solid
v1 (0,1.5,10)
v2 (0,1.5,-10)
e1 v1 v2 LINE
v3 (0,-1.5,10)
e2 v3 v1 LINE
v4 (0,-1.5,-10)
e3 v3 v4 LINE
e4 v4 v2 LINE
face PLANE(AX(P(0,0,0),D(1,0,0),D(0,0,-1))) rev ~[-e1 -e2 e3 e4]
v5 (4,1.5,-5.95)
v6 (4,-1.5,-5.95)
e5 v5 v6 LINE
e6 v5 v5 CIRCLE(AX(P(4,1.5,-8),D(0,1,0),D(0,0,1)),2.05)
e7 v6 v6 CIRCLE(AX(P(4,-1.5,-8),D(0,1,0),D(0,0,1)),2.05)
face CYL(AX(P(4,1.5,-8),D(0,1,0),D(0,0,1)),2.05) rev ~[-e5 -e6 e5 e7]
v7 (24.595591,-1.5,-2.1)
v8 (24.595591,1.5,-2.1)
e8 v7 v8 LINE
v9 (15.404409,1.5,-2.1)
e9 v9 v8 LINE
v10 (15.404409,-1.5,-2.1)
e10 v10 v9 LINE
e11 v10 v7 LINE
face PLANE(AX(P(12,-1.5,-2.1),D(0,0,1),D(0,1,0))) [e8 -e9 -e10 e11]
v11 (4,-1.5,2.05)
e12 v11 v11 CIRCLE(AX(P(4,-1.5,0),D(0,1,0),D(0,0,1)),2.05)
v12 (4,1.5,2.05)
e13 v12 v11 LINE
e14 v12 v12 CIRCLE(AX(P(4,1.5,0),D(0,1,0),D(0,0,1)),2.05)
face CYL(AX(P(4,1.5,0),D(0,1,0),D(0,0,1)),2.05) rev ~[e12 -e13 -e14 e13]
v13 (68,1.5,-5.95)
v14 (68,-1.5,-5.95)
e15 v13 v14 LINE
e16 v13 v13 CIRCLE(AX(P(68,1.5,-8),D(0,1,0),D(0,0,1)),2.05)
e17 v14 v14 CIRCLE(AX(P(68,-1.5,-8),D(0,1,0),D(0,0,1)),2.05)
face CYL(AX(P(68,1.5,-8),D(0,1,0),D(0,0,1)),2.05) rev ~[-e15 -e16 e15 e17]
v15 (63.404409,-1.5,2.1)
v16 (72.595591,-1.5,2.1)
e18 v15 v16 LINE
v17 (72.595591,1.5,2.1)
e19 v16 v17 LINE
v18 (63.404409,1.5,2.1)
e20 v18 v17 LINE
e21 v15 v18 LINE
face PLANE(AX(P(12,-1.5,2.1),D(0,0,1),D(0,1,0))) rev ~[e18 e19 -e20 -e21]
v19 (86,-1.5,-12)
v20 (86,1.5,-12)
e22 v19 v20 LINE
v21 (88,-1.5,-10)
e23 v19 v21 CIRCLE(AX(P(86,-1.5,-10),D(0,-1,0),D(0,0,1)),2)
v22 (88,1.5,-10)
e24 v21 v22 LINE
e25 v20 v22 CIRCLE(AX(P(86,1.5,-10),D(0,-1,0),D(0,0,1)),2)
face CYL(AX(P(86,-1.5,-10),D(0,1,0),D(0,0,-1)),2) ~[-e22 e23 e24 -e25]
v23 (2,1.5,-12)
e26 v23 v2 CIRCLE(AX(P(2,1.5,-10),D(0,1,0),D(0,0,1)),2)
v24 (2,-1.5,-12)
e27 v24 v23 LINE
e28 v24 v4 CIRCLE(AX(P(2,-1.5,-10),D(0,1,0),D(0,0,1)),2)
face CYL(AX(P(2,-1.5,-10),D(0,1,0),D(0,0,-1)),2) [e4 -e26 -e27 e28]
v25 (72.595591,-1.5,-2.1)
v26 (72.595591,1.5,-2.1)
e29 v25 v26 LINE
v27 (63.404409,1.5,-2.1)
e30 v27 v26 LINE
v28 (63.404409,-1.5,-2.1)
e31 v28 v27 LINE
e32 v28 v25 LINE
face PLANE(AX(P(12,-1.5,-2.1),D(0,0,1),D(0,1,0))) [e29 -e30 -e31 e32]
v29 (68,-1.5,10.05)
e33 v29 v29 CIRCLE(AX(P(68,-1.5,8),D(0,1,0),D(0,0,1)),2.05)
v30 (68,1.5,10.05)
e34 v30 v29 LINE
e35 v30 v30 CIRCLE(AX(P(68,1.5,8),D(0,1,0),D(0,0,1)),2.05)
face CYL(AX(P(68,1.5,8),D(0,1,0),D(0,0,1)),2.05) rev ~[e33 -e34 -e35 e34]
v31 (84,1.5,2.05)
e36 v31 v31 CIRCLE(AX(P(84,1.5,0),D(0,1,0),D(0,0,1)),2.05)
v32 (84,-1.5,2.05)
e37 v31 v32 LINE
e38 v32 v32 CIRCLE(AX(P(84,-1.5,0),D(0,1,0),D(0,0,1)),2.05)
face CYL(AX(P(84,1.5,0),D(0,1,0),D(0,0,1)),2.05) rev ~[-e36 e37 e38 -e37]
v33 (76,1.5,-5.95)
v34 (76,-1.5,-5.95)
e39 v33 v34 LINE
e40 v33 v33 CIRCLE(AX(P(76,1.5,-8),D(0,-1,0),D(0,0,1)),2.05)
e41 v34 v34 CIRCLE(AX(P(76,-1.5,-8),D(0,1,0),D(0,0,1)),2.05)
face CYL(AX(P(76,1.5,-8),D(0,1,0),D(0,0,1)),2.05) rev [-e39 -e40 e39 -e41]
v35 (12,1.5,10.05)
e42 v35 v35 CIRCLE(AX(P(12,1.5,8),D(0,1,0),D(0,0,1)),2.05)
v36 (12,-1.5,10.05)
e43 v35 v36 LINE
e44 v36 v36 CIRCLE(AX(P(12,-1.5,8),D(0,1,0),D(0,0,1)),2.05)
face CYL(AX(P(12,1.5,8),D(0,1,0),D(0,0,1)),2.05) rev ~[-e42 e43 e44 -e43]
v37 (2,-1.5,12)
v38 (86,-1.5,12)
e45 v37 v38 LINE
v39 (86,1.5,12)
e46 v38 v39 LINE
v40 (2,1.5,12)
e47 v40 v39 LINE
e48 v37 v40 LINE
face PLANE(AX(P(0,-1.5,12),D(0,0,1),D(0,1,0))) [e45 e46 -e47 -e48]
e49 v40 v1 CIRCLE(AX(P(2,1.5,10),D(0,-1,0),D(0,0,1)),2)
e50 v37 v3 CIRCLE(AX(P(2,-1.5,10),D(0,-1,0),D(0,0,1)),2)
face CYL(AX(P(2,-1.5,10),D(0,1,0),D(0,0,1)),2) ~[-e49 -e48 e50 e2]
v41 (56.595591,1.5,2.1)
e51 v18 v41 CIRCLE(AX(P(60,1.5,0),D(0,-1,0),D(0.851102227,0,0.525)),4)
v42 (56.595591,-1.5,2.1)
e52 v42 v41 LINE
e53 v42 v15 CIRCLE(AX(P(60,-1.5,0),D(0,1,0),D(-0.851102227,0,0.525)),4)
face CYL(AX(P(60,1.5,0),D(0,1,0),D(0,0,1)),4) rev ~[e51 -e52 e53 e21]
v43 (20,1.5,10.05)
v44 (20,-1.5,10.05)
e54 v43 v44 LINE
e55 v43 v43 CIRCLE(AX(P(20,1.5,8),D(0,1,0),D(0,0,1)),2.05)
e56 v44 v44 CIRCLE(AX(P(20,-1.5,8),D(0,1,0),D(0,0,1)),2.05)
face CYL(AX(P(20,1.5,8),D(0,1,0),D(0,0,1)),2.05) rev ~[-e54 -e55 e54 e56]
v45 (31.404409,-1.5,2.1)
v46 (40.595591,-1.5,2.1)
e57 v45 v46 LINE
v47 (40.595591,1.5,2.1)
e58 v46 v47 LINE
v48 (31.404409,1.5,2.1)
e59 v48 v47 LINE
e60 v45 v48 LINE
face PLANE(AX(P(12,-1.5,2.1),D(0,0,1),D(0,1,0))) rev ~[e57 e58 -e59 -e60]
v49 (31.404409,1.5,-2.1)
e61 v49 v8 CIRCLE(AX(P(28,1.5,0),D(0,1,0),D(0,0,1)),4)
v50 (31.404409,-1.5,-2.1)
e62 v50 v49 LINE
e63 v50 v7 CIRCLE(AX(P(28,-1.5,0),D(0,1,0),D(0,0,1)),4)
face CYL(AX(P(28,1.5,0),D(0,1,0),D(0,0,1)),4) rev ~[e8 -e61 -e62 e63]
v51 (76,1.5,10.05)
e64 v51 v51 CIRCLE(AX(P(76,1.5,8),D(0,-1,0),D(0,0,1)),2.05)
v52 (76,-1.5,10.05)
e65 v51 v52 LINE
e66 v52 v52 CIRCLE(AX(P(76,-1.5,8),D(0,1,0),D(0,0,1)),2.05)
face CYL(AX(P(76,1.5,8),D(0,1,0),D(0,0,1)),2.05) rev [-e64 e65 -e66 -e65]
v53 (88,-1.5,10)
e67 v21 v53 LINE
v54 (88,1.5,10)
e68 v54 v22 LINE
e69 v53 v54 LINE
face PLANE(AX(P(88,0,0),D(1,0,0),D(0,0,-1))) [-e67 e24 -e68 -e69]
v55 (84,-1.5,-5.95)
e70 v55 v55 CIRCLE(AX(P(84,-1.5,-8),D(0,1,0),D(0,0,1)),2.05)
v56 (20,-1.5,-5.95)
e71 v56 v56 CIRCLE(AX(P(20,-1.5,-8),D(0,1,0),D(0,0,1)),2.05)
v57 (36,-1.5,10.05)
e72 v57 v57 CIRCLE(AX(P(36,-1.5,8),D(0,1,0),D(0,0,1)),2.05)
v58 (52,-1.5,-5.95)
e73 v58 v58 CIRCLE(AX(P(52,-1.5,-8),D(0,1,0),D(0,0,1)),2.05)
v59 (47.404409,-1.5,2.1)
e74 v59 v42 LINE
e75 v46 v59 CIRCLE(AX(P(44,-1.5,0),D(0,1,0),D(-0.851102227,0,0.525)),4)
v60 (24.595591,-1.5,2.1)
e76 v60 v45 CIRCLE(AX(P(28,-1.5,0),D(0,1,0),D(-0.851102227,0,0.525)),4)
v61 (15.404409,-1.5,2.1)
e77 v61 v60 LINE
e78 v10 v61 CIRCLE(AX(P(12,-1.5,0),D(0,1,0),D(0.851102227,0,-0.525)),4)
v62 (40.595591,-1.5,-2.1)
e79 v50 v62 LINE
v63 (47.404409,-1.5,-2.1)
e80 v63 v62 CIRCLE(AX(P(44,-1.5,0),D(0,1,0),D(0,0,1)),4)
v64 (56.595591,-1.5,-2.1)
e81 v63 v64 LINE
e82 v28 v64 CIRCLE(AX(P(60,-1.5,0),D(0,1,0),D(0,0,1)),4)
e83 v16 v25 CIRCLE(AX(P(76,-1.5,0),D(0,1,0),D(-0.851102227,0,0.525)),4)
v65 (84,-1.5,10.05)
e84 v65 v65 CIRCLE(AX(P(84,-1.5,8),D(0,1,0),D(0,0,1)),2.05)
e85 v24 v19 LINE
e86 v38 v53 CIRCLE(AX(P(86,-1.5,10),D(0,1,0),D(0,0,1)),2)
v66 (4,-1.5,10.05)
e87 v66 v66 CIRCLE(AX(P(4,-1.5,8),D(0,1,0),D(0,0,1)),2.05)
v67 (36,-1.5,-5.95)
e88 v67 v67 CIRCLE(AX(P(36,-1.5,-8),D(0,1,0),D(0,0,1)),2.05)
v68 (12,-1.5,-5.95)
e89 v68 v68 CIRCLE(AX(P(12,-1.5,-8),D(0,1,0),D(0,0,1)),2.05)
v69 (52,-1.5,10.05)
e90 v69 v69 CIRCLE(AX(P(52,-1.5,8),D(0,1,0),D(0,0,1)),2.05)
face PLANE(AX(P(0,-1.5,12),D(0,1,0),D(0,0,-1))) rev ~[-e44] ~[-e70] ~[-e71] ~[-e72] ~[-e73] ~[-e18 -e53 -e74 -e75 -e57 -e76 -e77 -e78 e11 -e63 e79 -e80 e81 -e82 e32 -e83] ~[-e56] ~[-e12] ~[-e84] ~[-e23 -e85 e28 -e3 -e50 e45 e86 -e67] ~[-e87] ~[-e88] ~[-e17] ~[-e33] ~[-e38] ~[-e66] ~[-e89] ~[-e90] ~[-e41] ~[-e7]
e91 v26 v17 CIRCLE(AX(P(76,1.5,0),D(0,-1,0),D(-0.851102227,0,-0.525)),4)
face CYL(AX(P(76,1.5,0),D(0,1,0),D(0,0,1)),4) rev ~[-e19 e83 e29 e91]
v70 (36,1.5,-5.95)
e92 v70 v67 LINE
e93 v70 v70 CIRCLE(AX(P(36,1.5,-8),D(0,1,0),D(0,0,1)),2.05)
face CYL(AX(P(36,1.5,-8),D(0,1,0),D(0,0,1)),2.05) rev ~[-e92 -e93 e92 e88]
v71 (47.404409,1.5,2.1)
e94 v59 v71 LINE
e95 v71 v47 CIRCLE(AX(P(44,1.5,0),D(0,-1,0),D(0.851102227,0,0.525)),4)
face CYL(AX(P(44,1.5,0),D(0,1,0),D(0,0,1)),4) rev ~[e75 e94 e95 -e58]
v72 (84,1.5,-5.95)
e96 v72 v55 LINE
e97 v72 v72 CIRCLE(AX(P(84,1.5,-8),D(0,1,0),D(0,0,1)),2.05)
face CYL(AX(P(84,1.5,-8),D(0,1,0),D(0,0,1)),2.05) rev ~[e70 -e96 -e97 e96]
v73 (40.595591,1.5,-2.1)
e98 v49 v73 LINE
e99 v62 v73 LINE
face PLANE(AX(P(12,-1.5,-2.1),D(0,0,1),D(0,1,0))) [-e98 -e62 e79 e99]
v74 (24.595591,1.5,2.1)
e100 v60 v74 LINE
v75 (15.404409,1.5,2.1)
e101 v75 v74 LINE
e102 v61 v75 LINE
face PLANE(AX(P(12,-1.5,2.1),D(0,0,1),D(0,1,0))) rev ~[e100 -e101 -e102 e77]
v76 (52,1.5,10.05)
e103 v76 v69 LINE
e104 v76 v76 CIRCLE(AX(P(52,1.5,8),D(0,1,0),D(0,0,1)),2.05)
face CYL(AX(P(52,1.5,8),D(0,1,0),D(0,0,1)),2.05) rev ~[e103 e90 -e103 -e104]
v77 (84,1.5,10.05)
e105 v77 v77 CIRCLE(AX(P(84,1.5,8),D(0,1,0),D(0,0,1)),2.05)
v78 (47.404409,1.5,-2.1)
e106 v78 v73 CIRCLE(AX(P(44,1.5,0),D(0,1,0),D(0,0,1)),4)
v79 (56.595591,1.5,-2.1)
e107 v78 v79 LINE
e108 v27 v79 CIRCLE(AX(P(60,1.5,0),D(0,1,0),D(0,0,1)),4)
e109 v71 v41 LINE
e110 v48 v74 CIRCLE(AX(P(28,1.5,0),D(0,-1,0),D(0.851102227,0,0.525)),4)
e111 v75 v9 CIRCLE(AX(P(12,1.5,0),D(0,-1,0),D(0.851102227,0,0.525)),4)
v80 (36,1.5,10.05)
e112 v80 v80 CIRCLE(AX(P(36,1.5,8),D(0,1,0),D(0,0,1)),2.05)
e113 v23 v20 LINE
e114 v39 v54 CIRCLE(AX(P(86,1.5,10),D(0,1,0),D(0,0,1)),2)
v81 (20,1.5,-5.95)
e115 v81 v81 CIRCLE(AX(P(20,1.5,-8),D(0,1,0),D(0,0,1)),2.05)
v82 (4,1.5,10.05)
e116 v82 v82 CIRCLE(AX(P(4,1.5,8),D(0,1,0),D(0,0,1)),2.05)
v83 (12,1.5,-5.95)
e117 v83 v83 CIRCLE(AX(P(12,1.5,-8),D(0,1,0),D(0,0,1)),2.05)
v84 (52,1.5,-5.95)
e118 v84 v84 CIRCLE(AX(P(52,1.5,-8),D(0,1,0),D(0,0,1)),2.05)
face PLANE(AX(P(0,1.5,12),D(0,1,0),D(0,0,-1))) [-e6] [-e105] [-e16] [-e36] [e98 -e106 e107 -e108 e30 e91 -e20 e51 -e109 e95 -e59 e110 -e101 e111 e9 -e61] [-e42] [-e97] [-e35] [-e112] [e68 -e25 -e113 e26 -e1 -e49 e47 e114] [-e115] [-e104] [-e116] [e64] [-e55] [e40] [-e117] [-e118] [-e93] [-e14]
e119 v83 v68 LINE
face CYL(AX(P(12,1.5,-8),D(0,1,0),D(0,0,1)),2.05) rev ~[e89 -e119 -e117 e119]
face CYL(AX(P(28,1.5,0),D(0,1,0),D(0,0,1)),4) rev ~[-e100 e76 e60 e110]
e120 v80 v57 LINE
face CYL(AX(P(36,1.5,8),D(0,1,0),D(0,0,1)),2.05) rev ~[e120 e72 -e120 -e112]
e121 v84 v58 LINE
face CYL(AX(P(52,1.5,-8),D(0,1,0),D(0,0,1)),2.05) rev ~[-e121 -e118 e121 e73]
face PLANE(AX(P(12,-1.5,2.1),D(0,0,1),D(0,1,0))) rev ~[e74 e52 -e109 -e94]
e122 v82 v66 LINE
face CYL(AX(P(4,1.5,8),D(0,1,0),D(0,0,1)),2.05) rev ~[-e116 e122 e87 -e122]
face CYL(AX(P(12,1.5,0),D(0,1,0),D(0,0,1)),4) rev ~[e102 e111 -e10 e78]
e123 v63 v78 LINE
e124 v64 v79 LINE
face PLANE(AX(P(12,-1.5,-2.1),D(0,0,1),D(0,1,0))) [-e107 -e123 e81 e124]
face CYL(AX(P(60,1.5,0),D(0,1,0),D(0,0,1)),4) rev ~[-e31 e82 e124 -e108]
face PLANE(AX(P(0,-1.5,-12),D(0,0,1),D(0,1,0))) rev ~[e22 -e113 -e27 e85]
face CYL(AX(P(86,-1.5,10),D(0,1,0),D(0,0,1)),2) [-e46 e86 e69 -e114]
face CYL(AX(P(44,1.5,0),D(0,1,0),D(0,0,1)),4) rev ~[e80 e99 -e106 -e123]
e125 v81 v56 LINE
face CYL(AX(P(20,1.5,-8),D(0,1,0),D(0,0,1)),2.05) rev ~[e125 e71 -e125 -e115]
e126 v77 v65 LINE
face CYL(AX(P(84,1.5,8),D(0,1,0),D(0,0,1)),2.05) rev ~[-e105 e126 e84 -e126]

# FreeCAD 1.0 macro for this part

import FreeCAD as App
import Part
import Sketcher
from FreeCAD import Vector


def edges_at(feature, points):
    """Names of the edges that pass closest to the given points."""
    edges = feature.Shape.Edges
    near = lambda p: min(range(len(edges)), key=lambda i: edges[i].distToShape(Part.Vertex(*p))[0])
    return sorted({f"Edge{near(p) + 1}" for p in points})


def add_polygon(sketch, points):
    """Adds a closed chain of lines whose ends are joined by coincident constraints."""
    first, n = sketch.GeometryCount, len(points)
    for a, b in zip(points, points[1:] + points[:1]):
        sketch.addGeometry(Part.LineSegment(App.Vector(*a, 0), App.Vector(*b, 0)), False)
    for i in range(n):
        sketch.addConstraint(Sketcher.Constraint("Coincident", first + i, 2, first + (i + 1) % n, 1))

doc = App.newDocument("Part")
body = doc.addObject("PartDesign::Body", "Body")

# Sketch on YZ plane
sketch1 = body.newObject("Sketcher::SketchObject", "Sketch")
sketch1.AttachmentSupport = (doc.getObject("YZ_Plane"), [""])
sketch1.MapMode = "FlatFace"
add_polygon(sketch1, [(1.5, 12), (-1.5, 12), (-1.5, -12), (1.5, -12)])  # lines 0-3
sketch1.addConstraint([
    Sketcher.Constraint("Horizontal", 0),
    Sketcher.Constraint("Vertical", 1),
    Sketcher.Constraint("Horizontal", 2),
    Sketcher.Constraint("Vertical", 3),
    Sketcher.Constraint("Symmetric", 0, 2, 2, 2, -1, 1),
    Sketcher.Constraint("DistanceX", 0, 2, 0, 1, 3.0),
    Sketcher.Constraint("DistanceY", 1, 2, 1, 1, 24.0),
])
pad1 = body.newObject("PartDesign::Pad", "Pad")
pad1.Profile = sketch1
pad1.Length = 88
doc.recompute()

fillet = body.newObject("PartDesign::Fillet", "Fillet")
fillet.Base = (pad1, edges_at(pad1, [
    (88, 0, 12),
    (88, 0, -12),
    (0, 0, 12),
    (0, 0, -12),
]))
fillet.Radius = 2

# Sketch on XZ plane
sketch2 = body.newObject("Sketcher::SketchObject", "Sketch001")
sketch2.AttachmentSupport = (doc.getObject("XZ_Plane"), [""])
sketch2.MapMode = "FlatFace"
sketch2.AttachmentOffset = App.Placement(Vector(0, 0, -1.5), App.Rotation())
sketch2.addGeometry([
    Part.Circle(Vector(4, -8, 0), Vector(0, 0, 1), 2.05),
    Part.Circle(Vector(4, 8, 0), Vector(0, 0, 1), 2.05),
], False)
sketch2.addConstraint([
    Sketcher.Constraint("Equal", 0, 1),
    Sketcher.Constraint("Symmetric", 0, 3, 1, 3, -1),
    Sketcher.Constraint("Diameter", 0, 4.1),
    Sketcher.Constraint("DistanceX", -1, 1, 0, 3, 4.0),
    Sketcher.Constraint("DistanceY", 0, 3, -1, 1, 8.0),
])
pocket1 = body.newObject("PartDesign::Pocket", "Pocket")
pocket1.Profile = sketch2
pocket1.Type = "ThroughAll"
pocket1.Reversed = True

# Sketch on XZ plane
sketch3 = body.newObject("Sketcher::SketchObject", "Sketch002")
sketch3.AttachmentSupport = (doc.getObject("XZ_Plane"), [""])
sketch3.MapMode = "FlatFace"
sketch3.AttachmentOffset = App.Placement(Vector(0, 0, -1.5), App.Rotation())
sketch3.addGeometry(Part.Circle(Vector(12, 0, 0), Vector(0, 0, 1), 4), False)
sketch3.addConstraint([
    Sketcher.Constraint("PointOnObject", 0, 3, -1),
    Sketcher.Constraint("Diameter", 0, 8.0),
    Sketcher.Constraint("DistanceX", -1, 1, 0, 3, 12.0),
])
pocket2 = body.newObject("PartDesign::Pocket", "Pocket001")
pocket2.Profile = sketch3
pocket2.Type = "ThroughAll"
pocket2.Reversed = True
doc.recompute()

linearpattern = body.newObject("PartDesign::LinearPattern", "LinearPattern")
linearpattern.Originals = [pocket1]
linearpattern.Direction = (doc.getObject("X_Axis"), [""])
linearpattern.Mode = "offset"
linearpattern.Offset = 16
linearpattern.Occurrences = 12
body.Tip = linearpattern
doc.recompute()

linearpattern2 = body.newObject("PartDesign::LinearPattern", "LinearPattern001")
linearpattern2.Originals = [pocket2]
linearpattern2.Direction = (doc.getObject("X_Axis"), [""])
linearpattern2.Mode = "offset"
linearpattern2.Offset = 16
linearpattern2.Occurrences = 11
body.Tip = linearpattern2

# Sketch on XZ plane
sketch4 = body.newObject("Sketcher::SketchObject", "Sketch003")
sketch4.AttachmentSupport = (doc.getObject("XZ_Plane"), [""])
sketch4.MapMode = "FlatFace"
sketch4.AttachmentOffset = App.Placement(Vector(0, 0, -1.5), App.Rotation())
sketch4.addGeometry([
    Part.Circle(Vector(4, 0, 0), Vector(0, 0, 1), 2.05),
    Part.Circle(Vector(84, 0, 0), Vector(0, 0, 1), 2.05),
], False)
sketch4.addConstraint([
    Sketcher.Constraint("Equal", 0, 1),
    Sketcher.Constraint("PointOnObject", 0, 3, -1),
    Sketcher.Constraint("PointOnObject", 1, 3, -1),
    Sketcher.Constraint("Diameter", 0, 4.1),
    Sketcher.Constraint("DistanceX", -1, 1, 0, 3, 4.0),
    Sketcher.Constraint("DistanceX", -1, 1, 1, 3, 84.0),
])
pocket3 = body.newObject("PartDesign::Pocket", "Pocket002")
pocket3.Profile = sketch4
pocket3.Type = "ThroughAll"
pocket3.Reversed = True

# Sketch on YZ plane
sketch5 = body.newObject("Sketcher::SketchObject", "Sketch004")
sketch5.AttachmentSupport = (doc.getObject("YZ_Plane"), [""])
sketch5.MapMode = "FlatFace"
sketch5.AttachmentOffset = App.Placement(Vector(0, 0, 12), App.Rotation())
add_polygon(sketch5, [(1.5, -2.1), (-1.5, -2.1), (-1.5, 2.1), (1.5, 2.1)])  # lines 0-3
sketch5.addConstraint([
    Sketcher.Constraint("Horizontal", 0),
    Sketcher.Constraint("Vertical", 1),
    Sketcher.Constraint("Horizontal", 2),
    Sketcher.Constraint("Vertical", 3),
    Sketcher.Constraint("Symmetric", 0, 2, 2, 2, -1, 1),
    Sketcher.Constraint("DistanceX", 0, 2, 0, 1, 3.0),
    Sketcher.Constraint("DistanceY", 1, 1, 1, 2, 4.2),
])
pocket4 = body.newObject("PartDesign::Pocket", "Pocket003")
pocket4.Profile = sketch5
pocket4.Length = 66
pocket4.Reversed = True

# Sketch on XZ plane
sketch6 = body.newObject("Sketcher::SketchObject", "Sketch005")
sketch6.AttachmentSupport = (doc.getObject("XZ_Plane"), [""])
sketch6.MapMode = "FlatFace"
sketch6.AttachmentOffset = App.Placement(Vector(0, 0, -1.5), App.Rotation())
sketch6.addGeometry([
    Part.Circle(Vector(12, -8, 0), Vector(0, 0, 1), 2.05),
    Part.Circle(Vector(12, 8, 0), Vector(0, 0, 1), 2.05),
], False)
sketch6.addConstraint([
    Sketcher.Constraint("Equal", 0, 1),
    Sketcher.Constraint("Symmetric", 0, 3, 1, 3, -1),
    Sketcher.Constraint("Diameter", 0, 4.1),
    Sketcher.Constraint("DistanceX", -1, 1, 0, 3, 12.0),
    Sketcher.Constraint("DistanceY", 0, 3, -1, 1, 8.0),
])
pocket5 = body.newObject("PartDesign::Pocket", "Pocket004")
pocket5.Profile = sketch6
pocket5.Length = 10
pocket5.Reversed = True
doc.recompute()

datumplane = body.newObject("PartDesign::Plane", "DatumPlane")
datumplane.AttachmentSupport = (doc.getObject("YZ_Plane"), [""])
datumplane.MapMode = "FlatFace"
datumplane.AttachmentOffset = App.Placement(Vector(0, 0, 44), App.Rotation())
mirrored = body.newObject("PartDesign::Mirrored", "Mirrored")
mirrored.Originals = [pocket5]
mirrored.MirrorPlane = (datumplane, [""])
body.Tip = mirrored

doc.recompute()
